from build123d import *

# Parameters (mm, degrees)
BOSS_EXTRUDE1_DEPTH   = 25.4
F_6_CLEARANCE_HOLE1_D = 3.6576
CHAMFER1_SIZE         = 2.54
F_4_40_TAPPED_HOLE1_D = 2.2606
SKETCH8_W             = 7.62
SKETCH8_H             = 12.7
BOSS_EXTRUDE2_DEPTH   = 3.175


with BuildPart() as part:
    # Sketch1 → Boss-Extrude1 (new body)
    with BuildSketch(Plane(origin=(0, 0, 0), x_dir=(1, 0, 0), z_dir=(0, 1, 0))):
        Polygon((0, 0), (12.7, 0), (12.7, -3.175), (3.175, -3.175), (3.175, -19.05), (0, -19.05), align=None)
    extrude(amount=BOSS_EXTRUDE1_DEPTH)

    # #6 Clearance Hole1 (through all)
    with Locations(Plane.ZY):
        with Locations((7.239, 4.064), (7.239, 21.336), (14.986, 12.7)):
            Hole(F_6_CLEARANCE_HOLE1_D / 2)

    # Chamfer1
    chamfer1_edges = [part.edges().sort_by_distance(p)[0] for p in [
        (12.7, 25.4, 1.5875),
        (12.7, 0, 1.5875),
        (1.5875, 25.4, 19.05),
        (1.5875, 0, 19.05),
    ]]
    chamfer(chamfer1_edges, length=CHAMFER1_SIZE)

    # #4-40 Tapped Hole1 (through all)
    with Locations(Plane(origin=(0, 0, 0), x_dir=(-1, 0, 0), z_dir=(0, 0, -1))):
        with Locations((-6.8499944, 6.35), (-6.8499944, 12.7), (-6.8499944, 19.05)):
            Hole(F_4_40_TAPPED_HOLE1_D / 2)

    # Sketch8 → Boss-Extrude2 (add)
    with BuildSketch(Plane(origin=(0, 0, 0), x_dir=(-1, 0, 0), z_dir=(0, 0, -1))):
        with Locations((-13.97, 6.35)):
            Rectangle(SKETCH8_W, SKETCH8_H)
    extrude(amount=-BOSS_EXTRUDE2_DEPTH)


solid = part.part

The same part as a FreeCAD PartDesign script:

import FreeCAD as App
import Part
import Sketcher

V = App.Vector
Q = App.Units.Quantity


def edges_at(feature, points):
    """Names of the edges that pass closest to the given points."""
    edges = feature.Shape.Edges
    near = lambda p: min(range(len(edges)), key=lambda i: edges[i].distToShape(Part.Vertex(*p))[0])
    return sorted({f"Edge{near(p) + 1}" for p in points})


def add_polygon(sketch, points):
    """Adds a closed chain of lines whose ends are joined by coincident constraints."""
    first, n = sketch.GeometryCount, len(points)
    for a, b in zip(points, points[1:] + points[:1]):
        sketch.addGeometry(Part.LineSegment(App.Vector(*a, 0), App.Vector(*b, 0)), False)
    for i in range(n):
        sketch.addConstraint(Sketcher.Constraint("Coincident", first + i, 2, first + (i + 1) % n, 1))

doc = App.newDocument("Part")
body = doc.addObject("PartDesign::Body", "Body")

# Sketch on XZ plane
sketch1 = doc.addObject("Sketcher::SketchObject", "Sketch")
body.addObject(sketch1)
sketch1.AttachmentSupport = (doc.XZ_Plane, [""])
sketch1.MapMode = "FlatFace"
add_polygon(sketch1, [(12.7, 0), (0, 0), (0, 19.1), (3.2, 19.1), (3.2, 3.2), (12.7, 3.2)])  # lines 0-5
sketch1.addConstraint(Sketcher.Constraint("Horizontal", 0))
sketch1.addConstraint(Sketcher.Constraint("Vertical", 1))
sketch1.addConstraint(Sketcher.Constraint("Horizontal", 2))
sketch1.addConstraint(Sketcher.Constraint("Vertical", 3))
sketch1.addConstraint(Sketcher.Constraint("Horizontal", 4))
sketch1.addConstraint(Sketcher.Constraint("Vertical", 5))
sketch1.addConstraint(Sketcher.Constraint("Coincident", 0, 2, -1, 1))
sketch1.addConstraint(Sketcher.Constraint("Equal", 2, 5))
sketch1.addConstraint(Sketcher.Constraint("DistanceX", 0, 2, 0, 1, Q("0.5 in")))
sketch1.addConstraint(Sketcher.Constraint("DistanceY", 1, 1, 1, 2, Q("0.75 in")))
sketch1.addConstraint(Sketcher.Constraint("DistanceX", 2, 1, 2, 2, Q("0.125 in")))
pad1 = doc.addObject("PartDesign::Pad", "Pad")
body.addObject(pad1)
pad1.Profile = sketch1
pad1.Length = Q("1 in")
pad1.Reversed = True

# Sketch on YZ plane
sketch2 = doc.addObject("Sketcher::SketchObject", "Sketch001")
body.addObject(sketch2)
sketch2.AttachmentSupport = (doc.YZ_Plane, [""])
sketch2.MapMode = "FlatFace"
sketch2.addGeometry(Part.Circle(V(4.1, 7.2, 0), V(0, 0, 1), 1.8), False)
sketch2.addGeometry(Part.Circle(V(21.3, 7.2, 0), V(0, 0, 1), 1.8), False)
sketch2.addGeometry(Part.Circle(V(12.7, 15, 0), V(0, 0, 1), 1.8), False)
sketch2.addConstraint(Sketcher.Constraint("Equal", 0, 1))
sketch2.addConstraint(Sketcher.Constraint("Equal", 1, 2))
sketch2.addConstraint(Sketcher.Constraint("Horizontal", 0, 3, 1, 3))
sketch2.addConstraint(Sketcher.Constraint("Diameter", 0, Q("0.144 in")))
sketch2.addConstraint(Sketcher.Constraint("DistanceX", -1, 1, 2, 3, Q("0.5 in")))
sketch2.addConstraint(Sketcher.Constraint("DistanceX", -1, 1, 0, 3, Q("0.16 in")))
sketch2.addConstraint(Sketcher.Constraint("DistanceX", -1, 1, 1, 3, Q("0.84 in")))
sketch2.addConstraint(Sketcher.Constraint("DistanceY", -1, 1, 2, 3, Q("0.59 in")))
sketch2.addConstraint(Sketcher.Constraint("DistanceY", -1, 1, 0, 3, Q("0.285 in")))
doc.recompute()
hole = doc.addObject("PartDesign::Hole", "Hole")
body.addObject(hole)
hole.Profile = sketch2
hole.ThreadType = "None"
hole.Diameter = Q("0.144 in")
hole.DepthType = "ThroughAll"
hole.Reversed = True
doc.recompute()

chamfer = doc.addObject("PartDesign::Chamfer", "Chamfer")
body.addObject(chamfer)
chamfer.Base = (hole, edges_at(hole, [
    (12.7, 25.4, 1.587),
    (12.7, 0, 1.587),
    (1.587, 25.4, 19.05),
    (1.587, 0, 19.05),
]))
chamfer.Size = Q("0.1 in")

# Sketch on XY plane
sketch3 = doc.addObject("Sketcher::SketchObject", "Sketch002")
body.addObject(sketch3)
sketch3.AttachmentSupport = (doc.XY_Plane, [""])
sketch3.MapMode = "FlatFace"
sketch3.addGeometry(Part.Circle(V(6.8, 6.3, 0), V(0, 0, 1), 1.1), False)
sketch3.addGeometry(Part.Circle(V(6.8, 12.7, 0), V(0, 0, 1), 1.1), False)
sketch3.addGeometry(Part.Circle(V(6.8, 19.1, 0), V(0, 0, 1), 1.1), False)
sketch3.addConstraint(Sketcher.Constraint("Equal", 0, 1))
sketch3.addConstraint(Sketcher.Constraint("Equal", 1, 2))
sketch3.addConstraint(Sketcher.Constraint("Vertical", 0, 3, 1, 3))
sketch3.addConstraint(Sketcher.Constraint("Vertical", 1, 3, 2, 3))
sketch3.addConstraint(Sketcher.Constraint("Diameter", 0, Q("0.089 in")))
sketch3.addConstraint(Sketcher.Constraint("DistanceY", -1, 1, 1, 3, Q("0.5 in")))
sketch3.addConstraint(Sketcher.Constraint("DistanceY", 0, 3, 2, 3, Q("0.5 in")))
sketch3.addConstraint(Sketcher.Constraint("DistanceY", -1, 1, 0, 3, Q("0.25 in")))
sketch3.addConstraint(Sketcher.Constraint("DistanceX", -1, 1, 0, 3, Q("6.849994 mm")))
doc.recompute()
hole2 = doc.addObject("PartDesign::Hole", "Hole001")
body.addObject(hole2)
hole2.Profile = sketch3
hole2.ThreadType = "None"
hole2.Diameter = Q("0.089 in")
hole2.DepthType = "ThroughAll"
hole2.Reversed = True

# Sketch on XY plane
sketch4 = doc.addObject("Sketcher::SketchObject", "Sketch003")
body.addObject(sketch4)
sketch4.AttachmentSupport = (doc.XY_Plane, [""])
sketch4.MapMode = "FlatFace"
add_polygon(sketch4, [(18, 13), (18, 0), (10, 0), (10, 13)])  # lines 0-3
sketch4.addConstraint(Sketcher.Constraint("Vertical", 0))
sketch4.addConstraint(Sketcher.Constraint("Horizontal", 1))
sketch4.addConstraint(Sketcher.Constraint("Vertical", 2))
sketch4.addConstraint(Sketcher.Constraint("Horizontal", 3))
sketch4.addConstraint(Sketcher.Constraint("PointOnObject", 0, 2, -1))
sketch4.addConstraint(Sketcher.Constraint("DistanceX", 1, 2, 1, 1, Q("0.3 in")))
sketch4.addConstraint(Sketcher.Constraint("DistanceY", 0, 2, 0, 1, Q("0.5 in")))
sketch4.addConstraint(Sketcher.Constraint("DistanceX", -1, 1, 0, 2, Q("0.7 in")))
pad2 = doc.addObject("PartDesign::Pad", "Pad001")
body.addObject(pad2)
pad2.Profile = sketch4
pad2.Length = Q("0.125 in")

doc.recompute()
